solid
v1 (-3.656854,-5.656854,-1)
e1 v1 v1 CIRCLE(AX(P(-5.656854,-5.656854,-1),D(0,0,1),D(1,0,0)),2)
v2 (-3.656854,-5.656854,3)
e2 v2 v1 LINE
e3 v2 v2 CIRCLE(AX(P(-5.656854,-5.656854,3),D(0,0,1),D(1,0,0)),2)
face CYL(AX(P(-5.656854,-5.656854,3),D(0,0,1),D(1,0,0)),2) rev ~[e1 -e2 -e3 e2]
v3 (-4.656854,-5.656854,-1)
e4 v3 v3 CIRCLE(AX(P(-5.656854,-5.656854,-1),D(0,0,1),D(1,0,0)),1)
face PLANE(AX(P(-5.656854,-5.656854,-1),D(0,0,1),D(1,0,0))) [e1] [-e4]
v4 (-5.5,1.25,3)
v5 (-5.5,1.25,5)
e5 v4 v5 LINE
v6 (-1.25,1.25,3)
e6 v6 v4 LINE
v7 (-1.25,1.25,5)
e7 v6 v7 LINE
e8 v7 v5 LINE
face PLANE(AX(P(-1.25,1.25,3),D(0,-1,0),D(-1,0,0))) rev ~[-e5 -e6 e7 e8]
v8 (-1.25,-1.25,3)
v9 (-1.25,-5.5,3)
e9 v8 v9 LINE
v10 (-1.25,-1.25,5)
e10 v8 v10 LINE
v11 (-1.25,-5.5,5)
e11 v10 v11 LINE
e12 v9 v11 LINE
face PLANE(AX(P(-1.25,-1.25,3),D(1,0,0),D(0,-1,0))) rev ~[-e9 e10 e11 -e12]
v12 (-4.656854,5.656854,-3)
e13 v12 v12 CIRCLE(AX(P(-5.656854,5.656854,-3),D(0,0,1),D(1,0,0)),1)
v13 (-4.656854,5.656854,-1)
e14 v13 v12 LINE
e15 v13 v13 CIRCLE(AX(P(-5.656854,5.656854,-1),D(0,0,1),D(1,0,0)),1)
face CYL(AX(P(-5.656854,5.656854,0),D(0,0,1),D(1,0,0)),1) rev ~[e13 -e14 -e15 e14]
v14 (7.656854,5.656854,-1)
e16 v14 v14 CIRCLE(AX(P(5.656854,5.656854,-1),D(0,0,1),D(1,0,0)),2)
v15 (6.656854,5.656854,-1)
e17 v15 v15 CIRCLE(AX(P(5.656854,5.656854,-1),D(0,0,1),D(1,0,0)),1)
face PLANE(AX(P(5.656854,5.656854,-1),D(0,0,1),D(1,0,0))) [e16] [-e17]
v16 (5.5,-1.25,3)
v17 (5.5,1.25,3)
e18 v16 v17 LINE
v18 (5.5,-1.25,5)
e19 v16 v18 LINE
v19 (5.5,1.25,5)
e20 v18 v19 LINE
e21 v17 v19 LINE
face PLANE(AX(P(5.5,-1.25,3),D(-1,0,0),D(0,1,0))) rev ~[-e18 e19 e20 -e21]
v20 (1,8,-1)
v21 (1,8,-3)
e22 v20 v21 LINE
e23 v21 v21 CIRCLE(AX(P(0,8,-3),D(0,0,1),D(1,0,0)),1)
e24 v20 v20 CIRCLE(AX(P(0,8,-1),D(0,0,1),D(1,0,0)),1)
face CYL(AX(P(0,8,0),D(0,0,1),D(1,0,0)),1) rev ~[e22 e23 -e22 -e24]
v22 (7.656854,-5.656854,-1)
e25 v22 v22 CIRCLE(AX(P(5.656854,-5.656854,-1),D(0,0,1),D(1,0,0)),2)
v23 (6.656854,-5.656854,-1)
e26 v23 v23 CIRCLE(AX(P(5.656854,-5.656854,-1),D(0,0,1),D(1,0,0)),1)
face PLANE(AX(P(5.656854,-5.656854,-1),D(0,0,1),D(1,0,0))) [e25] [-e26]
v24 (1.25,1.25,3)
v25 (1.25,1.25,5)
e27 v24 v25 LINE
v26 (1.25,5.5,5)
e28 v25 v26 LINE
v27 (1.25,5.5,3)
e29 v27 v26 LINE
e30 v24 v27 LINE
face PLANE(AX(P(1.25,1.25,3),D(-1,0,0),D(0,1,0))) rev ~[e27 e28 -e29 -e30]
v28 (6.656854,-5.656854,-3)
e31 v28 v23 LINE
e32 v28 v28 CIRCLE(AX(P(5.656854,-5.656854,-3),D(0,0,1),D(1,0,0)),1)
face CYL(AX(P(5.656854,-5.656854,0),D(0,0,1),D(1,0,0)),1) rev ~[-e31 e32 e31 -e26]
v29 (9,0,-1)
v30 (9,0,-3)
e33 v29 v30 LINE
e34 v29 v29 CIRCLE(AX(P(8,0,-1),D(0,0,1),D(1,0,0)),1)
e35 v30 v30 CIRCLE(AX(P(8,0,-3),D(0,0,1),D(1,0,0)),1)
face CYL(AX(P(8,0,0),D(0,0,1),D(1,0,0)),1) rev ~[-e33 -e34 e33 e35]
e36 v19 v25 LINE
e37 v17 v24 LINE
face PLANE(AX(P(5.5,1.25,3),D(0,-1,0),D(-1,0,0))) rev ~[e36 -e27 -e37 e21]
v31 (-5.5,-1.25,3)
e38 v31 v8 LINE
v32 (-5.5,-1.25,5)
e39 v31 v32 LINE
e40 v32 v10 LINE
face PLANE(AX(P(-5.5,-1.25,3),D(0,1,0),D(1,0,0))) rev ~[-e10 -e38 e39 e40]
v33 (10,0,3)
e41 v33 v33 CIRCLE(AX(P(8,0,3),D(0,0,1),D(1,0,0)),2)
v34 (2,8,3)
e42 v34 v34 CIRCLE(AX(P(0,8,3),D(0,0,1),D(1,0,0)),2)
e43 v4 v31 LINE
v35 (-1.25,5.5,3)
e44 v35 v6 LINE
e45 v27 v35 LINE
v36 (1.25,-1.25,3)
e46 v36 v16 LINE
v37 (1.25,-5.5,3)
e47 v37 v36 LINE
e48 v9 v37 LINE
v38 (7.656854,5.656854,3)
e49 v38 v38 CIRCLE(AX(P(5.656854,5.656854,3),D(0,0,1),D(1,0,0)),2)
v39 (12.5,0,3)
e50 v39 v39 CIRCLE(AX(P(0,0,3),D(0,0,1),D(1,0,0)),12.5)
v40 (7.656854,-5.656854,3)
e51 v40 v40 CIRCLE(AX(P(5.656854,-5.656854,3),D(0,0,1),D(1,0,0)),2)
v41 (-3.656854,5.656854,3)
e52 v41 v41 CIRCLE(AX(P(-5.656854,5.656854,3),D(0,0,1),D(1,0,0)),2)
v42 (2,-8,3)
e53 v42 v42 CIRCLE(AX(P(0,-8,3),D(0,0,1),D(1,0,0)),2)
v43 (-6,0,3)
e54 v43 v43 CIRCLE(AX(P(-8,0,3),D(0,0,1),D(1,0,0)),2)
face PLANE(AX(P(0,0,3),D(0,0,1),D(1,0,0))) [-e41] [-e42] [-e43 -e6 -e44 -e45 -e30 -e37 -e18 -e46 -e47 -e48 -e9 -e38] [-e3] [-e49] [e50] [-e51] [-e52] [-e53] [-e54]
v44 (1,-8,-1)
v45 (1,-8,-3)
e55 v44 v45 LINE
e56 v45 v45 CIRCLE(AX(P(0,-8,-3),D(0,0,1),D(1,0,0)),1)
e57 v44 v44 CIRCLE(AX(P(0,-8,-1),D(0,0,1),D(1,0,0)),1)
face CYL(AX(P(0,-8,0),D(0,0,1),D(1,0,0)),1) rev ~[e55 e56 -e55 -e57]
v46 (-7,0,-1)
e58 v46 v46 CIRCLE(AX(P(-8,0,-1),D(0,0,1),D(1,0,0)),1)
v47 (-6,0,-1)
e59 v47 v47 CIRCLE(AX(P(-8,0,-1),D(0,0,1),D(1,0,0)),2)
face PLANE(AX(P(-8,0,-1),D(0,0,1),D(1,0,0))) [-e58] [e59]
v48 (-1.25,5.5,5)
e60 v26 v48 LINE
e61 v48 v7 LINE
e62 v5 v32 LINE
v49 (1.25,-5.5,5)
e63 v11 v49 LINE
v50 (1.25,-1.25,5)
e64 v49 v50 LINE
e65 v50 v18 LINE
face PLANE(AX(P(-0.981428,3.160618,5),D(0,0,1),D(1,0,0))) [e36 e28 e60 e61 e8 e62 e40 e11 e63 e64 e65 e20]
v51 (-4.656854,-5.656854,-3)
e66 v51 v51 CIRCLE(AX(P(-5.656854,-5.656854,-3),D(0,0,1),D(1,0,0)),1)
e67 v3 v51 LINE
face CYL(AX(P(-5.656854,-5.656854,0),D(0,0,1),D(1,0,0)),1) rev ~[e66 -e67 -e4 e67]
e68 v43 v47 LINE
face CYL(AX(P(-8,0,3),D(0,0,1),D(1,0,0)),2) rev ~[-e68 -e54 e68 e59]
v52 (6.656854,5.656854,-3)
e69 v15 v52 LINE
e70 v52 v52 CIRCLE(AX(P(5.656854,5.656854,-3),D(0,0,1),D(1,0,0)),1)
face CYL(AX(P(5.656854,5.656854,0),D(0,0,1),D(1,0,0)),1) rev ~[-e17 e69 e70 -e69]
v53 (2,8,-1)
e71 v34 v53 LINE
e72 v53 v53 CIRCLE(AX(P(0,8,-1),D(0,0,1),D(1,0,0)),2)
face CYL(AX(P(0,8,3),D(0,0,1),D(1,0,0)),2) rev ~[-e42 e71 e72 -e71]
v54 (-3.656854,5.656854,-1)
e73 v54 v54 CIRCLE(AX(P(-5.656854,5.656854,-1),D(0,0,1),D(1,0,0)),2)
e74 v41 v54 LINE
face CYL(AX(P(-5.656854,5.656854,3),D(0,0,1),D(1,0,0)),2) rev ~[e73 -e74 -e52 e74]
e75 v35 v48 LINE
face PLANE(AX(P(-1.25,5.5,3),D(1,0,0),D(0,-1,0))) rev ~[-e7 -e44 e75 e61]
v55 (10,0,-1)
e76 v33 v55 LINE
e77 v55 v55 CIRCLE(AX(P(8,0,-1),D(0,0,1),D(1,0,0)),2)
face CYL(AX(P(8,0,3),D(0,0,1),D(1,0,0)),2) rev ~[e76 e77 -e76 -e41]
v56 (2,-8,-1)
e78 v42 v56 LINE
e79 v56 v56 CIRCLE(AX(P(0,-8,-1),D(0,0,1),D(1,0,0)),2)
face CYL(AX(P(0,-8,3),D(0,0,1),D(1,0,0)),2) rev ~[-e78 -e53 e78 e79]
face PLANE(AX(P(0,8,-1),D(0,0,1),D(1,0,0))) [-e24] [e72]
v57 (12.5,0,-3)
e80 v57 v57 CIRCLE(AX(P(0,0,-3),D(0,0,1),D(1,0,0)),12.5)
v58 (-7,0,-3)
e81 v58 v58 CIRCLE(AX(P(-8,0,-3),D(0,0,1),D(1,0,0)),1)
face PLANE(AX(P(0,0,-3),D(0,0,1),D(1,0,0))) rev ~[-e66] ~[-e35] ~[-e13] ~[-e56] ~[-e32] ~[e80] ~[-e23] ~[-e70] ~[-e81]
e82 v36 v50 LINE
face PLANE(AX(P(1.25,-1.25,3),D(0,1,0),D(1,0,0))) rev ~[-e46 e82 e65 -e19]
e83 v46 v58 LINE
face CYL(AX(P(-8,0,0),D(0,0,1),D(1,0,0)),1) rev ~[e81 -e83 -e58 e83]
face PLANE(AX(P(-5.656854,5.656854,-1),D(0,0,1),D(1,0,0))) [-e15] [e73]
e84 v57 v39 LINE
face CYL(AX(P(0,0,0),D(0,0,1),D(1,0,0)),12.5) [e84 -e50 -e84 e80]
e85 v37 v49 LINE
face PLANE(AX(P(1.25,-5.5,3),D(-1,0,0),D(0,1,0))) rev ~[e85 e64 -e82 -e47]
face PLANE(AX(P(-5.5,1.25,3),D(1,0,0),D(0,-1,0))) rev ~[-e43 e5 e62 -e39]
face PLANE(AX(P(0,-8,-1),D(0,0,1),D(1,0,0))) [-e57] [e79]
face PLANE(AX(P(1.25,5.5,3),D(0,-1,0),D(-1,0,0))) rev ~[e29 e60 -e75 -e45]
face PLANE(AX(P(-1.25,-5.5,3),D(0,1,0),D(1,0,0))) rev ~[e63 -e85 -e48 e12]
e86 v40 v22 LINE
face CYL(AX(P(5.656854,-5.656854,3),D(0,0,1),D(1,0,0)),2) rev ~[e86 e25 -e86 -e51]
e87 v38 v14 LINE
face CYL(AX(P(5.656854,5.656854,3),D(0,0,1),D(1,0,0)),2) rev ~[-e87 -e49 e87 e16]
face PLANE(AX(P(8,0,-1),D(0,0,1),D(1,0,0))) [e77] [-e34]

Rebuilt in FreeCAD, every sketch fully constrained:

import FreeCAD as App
import Part
import Sketcher

V = App.Vector
Q = App.Units.Quantity

doc = App.newDocument("Part")
body = doc.addObject("PartDesign::Body", "Body")

sketch1 = body.newObject("Sketcher::SketchObject", "Sketch")
sketch1.AttachmentSupport = (doc.getObject("XY_Plane"), [""])
sketch1.MapMode = "FlatFace"
sketch1.addGeometry(Part.Circle(V(0, 0, 0), V(0, 0, 1), 12.5), False)
sketch1.addConstraint(Sketcher.Constraint("Coincident", 0, 3, -1, 1))
sketch1.addConstraint(Sketcher.Constraint("Diameter", 0, Q("25 mm")))
pad1 = body.newObject("PartDesign::Pad", "Pad")
pad1.Profile = sketch1
pad1.Length = 6
pad1.Midplane = True

sketch2 = body.newObject("Sketcher::SketchObject", "Sketch001")
sketch2.AttachmentSupport = (doc.getObject("XY_Plane"), [""])
sketch2.MapMode = "FlatFace"
sketch2.addGeometry(Part.Circle(V(0, -8, 0), V(0, 0, 1), 1), False)
sketch2.addGeometry(Part.Circle(V(-5.656854, -5.656854, 0), V(0, 0, 1), 1), False)
sketch2.addGeometry(Part.Circle(V(-8, 0, 0), V(0, 0, 1), 1), False)
sketch2.addGeometry(Part.Circle(V(-5.656854, 5.656854, 0), V(0, 0, 1), 1), False)
sketch2.addGeometry(Part.Circle(V(0, 8, 0), V(0, 0, 1), 1), False)
sketch2.addGeometry(Part.Circle(V(5.656854, 5.656854, 0), V(0, 0, 1), 1), False)
sketch2.addGeometry(Part.Circle(V(8, 0, 0), V(0, 0, 1), 1), False)
sketch2.addGeometry(Part.Circle(V(5.656854, -5.656854, 0), V(0, 0, 1), 1), False)
sketch2.addConstraint(Sketcher.Constraint("Equal", 0, 1))
sketch2.addConstraint(Sketcher.Constraint("Equal", 1, 2))
sketch2.addConstraint(Sketcher.Constraint("Equal", 2, 3))
sketch2.addConstraint(Sketcher.Constraint("Equal", 3, 4))
sketch2.addConstraint(Sketcher.Constraint("Equal", 4, 5))
sketch2.addConstraint(Sketcher.Constraint("Equal", 5, 6))
sketch2.addConstraint(Sketcher.Constraint("Equal", 6, 7))
sketch2.addConstraint(Sketcher.Constraint("Symmetric", 0, 3, 4, 3, -1, 1))
sketch2.addConstraint(Sketcher.Constraint("Symmetric", 1, 3, 5, 3, -1, 1))
sketch2.addConstraint(Sketcher.Constraint("Symmetric", 2, 3, 6, 3, -1, 1))
sketch2.addConstraint(Sketcher.Constraint("Symmetric", 3, 3, 7, 3, -1, 1))
sketch2.addConstraint(Sketcher.Constraint("Symmetric", 3, 3, 5, 3, -2))
sketch2.addConstraint(Sketcher.Constraint("PointOnObject", 0, 3, -2))
sketch2.addConstraint(Sketcher.Constraint("PointOnObject", 2, 3, -1))
sketch2.addConstraint(Sketcher.Constraint("Diameter", 0, Q("2 mm")))
sketch2.addConstraint(Sketcher.Constraint("DistanceY", 0, 3, -1, 1, Q("8 mm")))
sketch2.addConstraint(Sketcher.Constraint("DistanceX", 2, 3, -1, 1, Q("8 mm")))
sketch2.addConstraint(Sketcher.Constraint("DistanceY", 1, 3, 3, 3, Q("11.313709 mm")))
sketch2.addConstraint(Sketcher.Constraint("DistanceX", 3, 3, 5, 3, Q("11.313709 mm")))
pocket1 = body.newObject("PartDesign::Pocket", "Pocket")
pocket1.Profile = sketch2
pocket1.Length = 25
pocket1.Midplane = True

sketch3 = body.newObject("Sketcher::SketchObject", "Sketch002")
sketch3.AttachmentSupport = (doc.getObject("XY_Plane"), [""])
sketch3.MapMode = "FlatFace"
sketch3.AttachmentOffset = App.Placement(V(0, 0, 3), App.Rotation())
sketch3.addGeometry(Part.Circle(V(-5.656854, 5.656854, 0), V(0, 0, 1), 2), False)
sketch3.addGeometry(Part.Circle(V(-5.656854, 5.656854, 0), V(0, 0, 1), 1), False)
sketch3.addGeometry(Part.Circle(V(-8, 0, 0), V(0, 0, 1), 2), False)
sketch3.addGeometry(Part.Circle(V(-8, 0, 0), V(0, 0, 1), 1), False)
sketch3.addGeometry(Part.Circle(V(0, 8, 0), V(0, 0, 1), 2), False)
sketch3.addGeometry(Part.Circle(V(0, 8, 0), V(0, 0, 1), 1), False)
sketch3.addGeometry(Part.Circle(V(8, 0, 0), V(0, 0, 1), 2), False)
sketch3.addGeometry(Part.Circle(V(8, 0, 0), V(0, 0, 1), 1), False)
sketch3.addGeometry(Part.Circle(V(5.656854, 5.656854, 0), V(0, 0, 1), 2), False)
sketch3.addGeometry(Part.Circle(V(5.656854, 5.656854, 0), V(0, 0, 1), 1), False)
sketch3.addGeometry(Part.Circle(V(5.656854, -5.656854, 0), V(0, 0, 1), 2), False)
sketch3.addGeometry(Part.Circle(V(5.656854, -5.656854, 0), V(0, 0, 1), 1), False)
sketch3.addGeometry(Part.Circle(V(0, -8, 0), V(0, 0, 1), 2), False)
sketch3.addGeometry(Part.Circle(V(0, -8, 0), V(0, 0, 1), 1), False)
sketch3.addGeometry(Part.Circle(V(-5.656854, -5.656854, 0), V(0, 0, 1), 2), False)
sketch3.addGeometry(Part.Circle(V(-5.656854, -5.656854, 0), V(0, 0, 1), 1), False)
sketch3.addConstraint(Sketcher.Constraint("Coincident", 1, 3, 0, 3))
sketch3.addConstraint(Sketcher.Constraint("Coincident", 3, 3, 2, 3))
sketch3.addConstraint(Sketcher.Constraint("Coincident", 5, 3, 4, 3))
sketch3.addConstraint(Sketcher.Constraint("Coincident", 7, 3, 6, 3))
sketch3.addConstraint(Sketcher.Constraint("Coincident", 9, 3, 8, 3))
sketch3.addConstraint(Sketcher.Constraint("Coincident", 11, 3, 10, 3))
sketch3.addConstraint(Sketcher.Constraint("Coincident", 13, 3, 12, 3))
sketch3.addConstraint(Sketcher.Constraint("Coincident", 15, 3, 14, 3))
sketch3.addConstraint(Sketcher.Constraint("Equal", 0, 2))
sketch3.addConstraint(Sketcher.Constraint("Equal", 1, 3))
sketch3.addConstraint(Sketcher.Constraint("Equal", 2, 4))
sketch3.addConstraint(Sketcher.Constraint("Equal", 3, 5))
sketch3.addConstraint(Sketcher.Constraint("Equal", 4, 6))
sketch3.addConstraint(Sketcher.Constraint("Equal", 5, 7))
sketch3.addConstraint(Sketcher.Constraint("Equal", 6, 8))
sketch3.addConstraint(Sketcher.Constraint("Equal", 7, 9))
sketch3.addConstraint(Sketcher.Constraint("Equal", 8, 10))
sketch3.addConstraint(Sketcher.Constraint("Equal", 9, 11))
sketch3.addConstraint(Sketcher.Constraint("Equal", 10, 12))
sketch3.addConstraint(Sketcher.Constraint("Equal", 11, 13))
sketch3.addConstraint(Sketcher.Constraint("Equal", 12, 14))
sketch3.addConstraint(Sketcher.Constraint("Equal", 13, 15))
sketch3.addConstraint(Sketcher.Constraint("Symmetric", 2, 3, 6, 3, -1, 1))
sketch3.addConstraint(Sketcher.Constraint("Symmetric", 0, 3, 10, 3, -1, 1))
sketch3.addConstraint(Sketcher.Constraint("Symmetric", 4, 3, 12, 3, -1, 1))
sketch3.addConstraint(Sketcher.Constraint("Symmetric", 8, 3, 14, 3, -1, 1))
sketch3.addConstraint(Sketcher.Constraint("Symmetric", 0, 3, 8, 3, -2))
sketch3.addConstraint(Sketcher.Constraint("PointOnObject", 2, 3, -1))
sketch3.addConstraint(Sketcher.Constraint("PointOnObject", 4, 3, -2))
sketch3.addConstraint(Sketcher.Constraint("Diameter", 0, Q("4 mm")))
sketch3.addConstraint(Sketcher.Constraint("Diameter", 1, Q("2 mm")))
sketch3.addConstraint(Sketcher.Constraint("DistanceX", 2, 3, -1, 1, Q("8 mm")))
sketch3.addConstraint(Sketcher.Constraint("DistanceY", -1, 1, 4, 3, Q("8 mm")))
sketch3.addConstraint(Sketcher.Constraint("DistanceX", 0, 3, 8, 3, Q("11.313709 mm")))
sketch3.addConstraint(Sketcher.Constraint("DistanceY", 10, 3, 8, 3, Q("11.313709 mm")))
pocket2 = body.newObject("PartDesign::Pocket", "Pocket001")
pocket2.Profile = sketch3
pocket2.Length = 4

sketch4 = body.newObject("Sketcher::SketchObject", "Sketch003")
sketch4.AttachmentSupport = (doc.getObject("XY_Plane"), [""])
sketch4.MapMode = "FlatFace"
sketch4.AttachmentOffset = App.Placement(V(0, 0, 3), App.Rotation())
sketch4.addGeometry(Part.LineSegment(V(-1.25, 5.5, 0), V(-1.25, 1.25, 0)), False)
sketch4.addGeometry(Part.LineSegment(V(-1.25, 1.25, 0), V(-5.5, 1.25, 0)), False)
sketch4.addGeometry(Part.LineSegment(V(-5.5, 1.25, 0), V(-5.5, -1.25, 0)), False)
sketch4.addGeometry(Part.LineSegment(V(-5.5, -1.25, 0), V(-1.25, -1.25, 0)), False)
sketch4.addGeometry(Part.LineSegment(V(-1.25, -1.25, 0), V(-1.25, -5.5, 0)), False)
sketch4.addGeometry(Part.LineSegment(V(-1.25, -5.5, 0), V(1.25, -5.5, 0)), False)
sketch4.addGeometry(Part.LineSegment(V(1.25, -5.5, 0), V(1.25, -1.25, 0)), False)
sketch4.addGeometry(Part.LineSegment(V(1.25, -1.25, 0), V(5.5, -1.25, 0)), False)
sketch4.addGeometry(Part.LineSegment(V(5.5, -1.25, 0), V(5.5, 1.25, 0)), False)
sketch4.addGeometry(Part.LineSegment(V(5.5, 1.25, 0), V(1.25, 1.25, 0)), False)
sketch4.addGeometry(Part.LineSegment(V(1.25, 1.25, 0), V(1.25, 5.5, 0)), False)
sketch4.addGeometry(Part.LineSegment(V(1.25, 5.5, 0), V(-1.25, 5.5, 0)), False)
sketch4.addConstraint(Sketcher.Constraint("Coincident", 0, 2, 1, 1))
sketch4.addConstraint(Sketcher.Constraint("Coincident", 1, 2, 2, 1))
sketch4.addConstraint(Sketcher.Constraint("Coincident", 2, 2, 3, 1))
sketch4.addConstraint(Sketcher.Constraint("Coincident", 3, 2, 4, 1))
sketch4.addConstraint(Sketcher.Constraint("Coincident", 4, 2, 5, 1))
sketch4.addConstraint(Sketcher.Constraint("Coincident", 5, 2, 6, 1))
sketch4.addConstraint(Sketcher.Constraint("Coincident", 6, 2, 7, 1))
sketch4.addConstraint(Sketcher.Constraint("Coincident", 7, 2, 8, 1))
sketch4.addConstraint(Sketcher.Constraint("Coincident", 8, 2, 9, 1))
sketch4.addConstraint(Sketcher.Constraint("Coincident", 9, 2, 10, 1))
sketch4.addConstraint(Sketcher.Constraint("Coincident", 10, 2, 11, 1))
sketch4.addConstraint(Sketcher.Constraint("Coincident", 11, 2, 0, 1))
sketch4.addConstraint(Sketcher.Constraint("Vertical", 0))
sketch4.addConstraint(Sketcher.Constraint("Horizontal", 1))
sketch4.addConstraint(Sketcher.Constraint("Vertical", 2))
sketch4.addConstraint(Sketcher.Constraint("Horizontal", 3))
sketch4.addConstraint(Sketcher.Constraint("Vertical", 4))
sketch4.addConstraint(Sketcher.Constraint("Horizontal", 5))
sketch4.addConstraint(Sketcher.Constraint("Vertical", 6))
sketch4.addConstraint(Sketcher.Constraint("Horizontal", 7))
sketch4.addConstraint(Sketcher.Constraint("Vertical", 8))
sketch4.addConstraint(Sketcher.Constraint("Horizontal", 9))
sketch4.addConstraint(Sketcher.Constraint("Vertical", 10))
sketch4.addConstraint(Sketcher.Constraint("Horizontal", 11))
sketch4.addConstraint(Sketcher.Constraint("Symmetric", 0, 2, 6, 2, -1, 1))
sketch4.addConstraint(Sketcher.Constraint("Symmetric", 2, 2, 8, 2, -1, 1))
sketch4.addConstraint(Sketcher.Constraint("Symmetric", 4, 2, 10, 2, -1, 1))
sketch4.addConstraint(Sketcher.Constraint("Symmetric", 3, 2, 6, 2, -2))
sketch4.addConstraint(Sketcher.Constraint("Equal", 9, 0))
sketch4.addConstraint(Sketcher.Constraint("Equal", 11, 2))
sketch4.addConstraint(Sketcher.Constraint("DistanceX", 5, 1, 5, 2, Q("2.5 mm")))
sketch4.addConstraint(Sketcher.Constraint("DistanceX", 1, 2, 1, 1, Q("4.25 mm")))
pad2 = body.newObject("PartDesign::Pad", "Pad001")
pad2.Profile = sketch4
pad2.Length = 2

doc.recompute()
